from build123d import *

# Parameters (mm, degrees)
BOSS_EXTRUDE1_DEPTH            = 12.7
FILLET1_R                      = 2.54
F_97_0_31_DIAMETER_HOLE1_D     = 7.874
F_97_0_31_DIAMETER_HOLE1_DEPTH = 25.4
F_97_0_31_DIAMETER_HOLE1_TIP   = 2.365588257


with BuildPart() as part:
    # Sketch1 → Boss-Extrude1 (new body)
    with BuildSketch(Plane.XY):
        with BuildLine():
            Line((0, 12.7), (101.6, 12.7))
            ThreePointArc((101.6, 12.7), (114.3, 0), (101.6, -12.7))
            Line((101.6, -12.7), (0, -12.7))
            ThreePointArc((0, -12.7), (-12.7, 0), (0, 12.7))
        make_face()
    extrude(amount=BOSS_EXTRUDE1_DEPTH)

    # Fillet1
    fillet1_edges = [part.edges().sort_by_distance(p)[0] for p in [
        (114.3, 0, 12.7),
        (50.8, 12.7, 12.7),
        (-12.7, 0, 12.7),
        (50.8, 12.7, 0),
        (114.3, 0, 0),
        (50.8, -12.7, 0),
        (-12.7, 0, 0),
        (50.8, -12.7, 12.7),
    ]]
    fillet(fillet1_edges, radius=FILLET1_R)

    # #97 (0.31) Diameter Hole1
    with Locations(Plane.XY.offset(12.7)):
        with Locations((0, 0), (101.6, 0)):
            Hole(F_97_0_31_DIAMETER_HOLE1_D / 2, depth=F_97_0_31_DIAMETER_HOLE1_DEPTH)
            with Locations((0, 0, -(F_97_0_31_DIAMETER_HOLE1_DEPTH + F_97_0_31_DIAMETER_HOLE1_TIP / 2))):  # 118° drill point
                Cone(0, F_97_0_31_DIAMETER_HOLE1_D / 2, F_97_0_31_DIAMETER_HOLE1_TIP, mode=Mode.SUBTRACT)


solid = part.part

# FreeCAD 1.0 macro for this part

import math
import FreeCAD as App
import Part
import Sketcher
Q = App.Units.Quantity


def edges_at(feature, points):
    """Names of the edges that pass closest to the given points."""
    edges = feature.Shape.Edges
    near = lambda p: min(range(len(edges)), key=lambda i: edges[i].distToShape(Part.Vertex(*p))[0])
    return sorted({f"Edge{near(p) + 1}" for p in points})

doc = App.newDocument("Part")
body = doc.addObject("PartDesign::Body", "Body")

sketch1 = body.newObject("Sketcher::SketchObject", "Sketch")
sketch1.AttachmentSupport = (doc.getObject("XY_Plane"), [""])
sketch1.MapMode = "FlatFace"
sketch1.addGeometry(Part.LineSegment(App.Vector(101.6, 12.7, 0), App.Vector(0, 12.7, 0)), False)
sketch1.addGeometry(Part.ArcOfCircle(Part.Circle(App.Vector(0, 0, 0), App.Vector(0, 0, 1), 12.7), math.radians(90), math.radians(270)), False)
sketch1.addGeometry(Part.LineSegment(App.Vector(0, -12.7, 0), App.Vector(101.6, -12.7, 0)), False)
sketch1.addGeometry(Part.ArcOfCircle(Part.Circle(App.Vector(101.6, 0, 0), App.Vector(0, 0, 1), 12.7), math.radians(-90), math.radians(90)), False)
sketch1.addConstraint(Sketcher.Constraint("Tangent", 0, 2, 1, 1))
sketch1.addConstraint(Sketcher.Constraint("Tangent", 1, 2, 2, 1))
sketch1.addConstraint(Sketcher.Constraint("Tangent", 2, 2, 3, 1))
sketch1.addConstraint(Sketcher.Constraint("Tangent", 3, 2, 0, 1))
sketch1.addConstraint(Sketcher.Constraint("Horizontal", 0))
sketch1.addConstraint(Sketcher.Constraint("Horizontal", 2))
sketch1.addConstraint(Sketcher.Constraint("Coincident", 1, 3, -1, 1))
sketch1.addConstraint(Sketcher.Constraint("Radius", 1, Q("0.5 in")))
sketch1.addConstraint(Sketcher.Constraint("DistanceX", 0, 2, 0, 1, Q("4 in")))
pad1 = body.newObject("PartDesign::Pad", "Pad")
pad1.Profile = sketch1
pad1.Length = Q("0.5 in")
doc.recompute()

fillet = body.newObject("PartDesign::Fillet", "Fillet")
fillet.Base = (pad1, edges_at(pad1, [
    (114.3, 0, 12.7),
    (50.8, 12.7, 12.7),
    (-12.7, 0, 12.7),
    (50.8, 12.7, 0),
    (114.3, 0, 0),
    (50.8, -12.7, 0),
    (-12.7, 0, 0),
    (50.8, -12.7, 12.7),
]))
fillet.Radius = Q("0.1 in")

sketch2 = body.newObject("Sketcher::SketchObject", "Sketch001")
sketch2.AttachmentSupport = (doc.getObject("XY_Plane"), [""])
sketch2.MapMode = "FlatFace"
sketch2.AttachmentOffset = App.Placement(App.Vector(0, 0, 0.5 * 25.4), App.Rotation())
sketch2.addGeometry(Part.Circle(App.Vector(0, 0, 0), App.Vector(0, 0, 1), 3.937), False)
sketch2.addGeometry(Part.Circle(App.Vector(101.6, 0, 0), App.Vector(0, 0, 1), 3.937), False)
sketch2.addConstraint(Sketcher.Constraint("Coincident", 0, 3, -1, 1))
sketch2.addConstraint(Sketcher.Constraint("Equal", 0, 1))
sketch2.addConstraint(Sketcher.Constraint("PointOnObject", 1, 3, -1))
sketch2.addConstraint(Sketcher.Constraint("Diameter", 0, Q("0.31 in")))
sketch2.addConstraint(Sketcher.Constraint("DistanceX", -1, 1, 1, 3, Q("4 in")))
doc.recompute()
hole = body.newObject("PartDesign::Hole", "Hole")
hole.Profile = sketch2
hole.ThreadType = "None"
hole.Diameter = Q("0.31 in")
hole.DepthType = "Dimension"
hole.Depth = Q("1 in")
hole.DrillPoint = "Angled"
hole.DrillPointAngle = 118

doc.recompute()
